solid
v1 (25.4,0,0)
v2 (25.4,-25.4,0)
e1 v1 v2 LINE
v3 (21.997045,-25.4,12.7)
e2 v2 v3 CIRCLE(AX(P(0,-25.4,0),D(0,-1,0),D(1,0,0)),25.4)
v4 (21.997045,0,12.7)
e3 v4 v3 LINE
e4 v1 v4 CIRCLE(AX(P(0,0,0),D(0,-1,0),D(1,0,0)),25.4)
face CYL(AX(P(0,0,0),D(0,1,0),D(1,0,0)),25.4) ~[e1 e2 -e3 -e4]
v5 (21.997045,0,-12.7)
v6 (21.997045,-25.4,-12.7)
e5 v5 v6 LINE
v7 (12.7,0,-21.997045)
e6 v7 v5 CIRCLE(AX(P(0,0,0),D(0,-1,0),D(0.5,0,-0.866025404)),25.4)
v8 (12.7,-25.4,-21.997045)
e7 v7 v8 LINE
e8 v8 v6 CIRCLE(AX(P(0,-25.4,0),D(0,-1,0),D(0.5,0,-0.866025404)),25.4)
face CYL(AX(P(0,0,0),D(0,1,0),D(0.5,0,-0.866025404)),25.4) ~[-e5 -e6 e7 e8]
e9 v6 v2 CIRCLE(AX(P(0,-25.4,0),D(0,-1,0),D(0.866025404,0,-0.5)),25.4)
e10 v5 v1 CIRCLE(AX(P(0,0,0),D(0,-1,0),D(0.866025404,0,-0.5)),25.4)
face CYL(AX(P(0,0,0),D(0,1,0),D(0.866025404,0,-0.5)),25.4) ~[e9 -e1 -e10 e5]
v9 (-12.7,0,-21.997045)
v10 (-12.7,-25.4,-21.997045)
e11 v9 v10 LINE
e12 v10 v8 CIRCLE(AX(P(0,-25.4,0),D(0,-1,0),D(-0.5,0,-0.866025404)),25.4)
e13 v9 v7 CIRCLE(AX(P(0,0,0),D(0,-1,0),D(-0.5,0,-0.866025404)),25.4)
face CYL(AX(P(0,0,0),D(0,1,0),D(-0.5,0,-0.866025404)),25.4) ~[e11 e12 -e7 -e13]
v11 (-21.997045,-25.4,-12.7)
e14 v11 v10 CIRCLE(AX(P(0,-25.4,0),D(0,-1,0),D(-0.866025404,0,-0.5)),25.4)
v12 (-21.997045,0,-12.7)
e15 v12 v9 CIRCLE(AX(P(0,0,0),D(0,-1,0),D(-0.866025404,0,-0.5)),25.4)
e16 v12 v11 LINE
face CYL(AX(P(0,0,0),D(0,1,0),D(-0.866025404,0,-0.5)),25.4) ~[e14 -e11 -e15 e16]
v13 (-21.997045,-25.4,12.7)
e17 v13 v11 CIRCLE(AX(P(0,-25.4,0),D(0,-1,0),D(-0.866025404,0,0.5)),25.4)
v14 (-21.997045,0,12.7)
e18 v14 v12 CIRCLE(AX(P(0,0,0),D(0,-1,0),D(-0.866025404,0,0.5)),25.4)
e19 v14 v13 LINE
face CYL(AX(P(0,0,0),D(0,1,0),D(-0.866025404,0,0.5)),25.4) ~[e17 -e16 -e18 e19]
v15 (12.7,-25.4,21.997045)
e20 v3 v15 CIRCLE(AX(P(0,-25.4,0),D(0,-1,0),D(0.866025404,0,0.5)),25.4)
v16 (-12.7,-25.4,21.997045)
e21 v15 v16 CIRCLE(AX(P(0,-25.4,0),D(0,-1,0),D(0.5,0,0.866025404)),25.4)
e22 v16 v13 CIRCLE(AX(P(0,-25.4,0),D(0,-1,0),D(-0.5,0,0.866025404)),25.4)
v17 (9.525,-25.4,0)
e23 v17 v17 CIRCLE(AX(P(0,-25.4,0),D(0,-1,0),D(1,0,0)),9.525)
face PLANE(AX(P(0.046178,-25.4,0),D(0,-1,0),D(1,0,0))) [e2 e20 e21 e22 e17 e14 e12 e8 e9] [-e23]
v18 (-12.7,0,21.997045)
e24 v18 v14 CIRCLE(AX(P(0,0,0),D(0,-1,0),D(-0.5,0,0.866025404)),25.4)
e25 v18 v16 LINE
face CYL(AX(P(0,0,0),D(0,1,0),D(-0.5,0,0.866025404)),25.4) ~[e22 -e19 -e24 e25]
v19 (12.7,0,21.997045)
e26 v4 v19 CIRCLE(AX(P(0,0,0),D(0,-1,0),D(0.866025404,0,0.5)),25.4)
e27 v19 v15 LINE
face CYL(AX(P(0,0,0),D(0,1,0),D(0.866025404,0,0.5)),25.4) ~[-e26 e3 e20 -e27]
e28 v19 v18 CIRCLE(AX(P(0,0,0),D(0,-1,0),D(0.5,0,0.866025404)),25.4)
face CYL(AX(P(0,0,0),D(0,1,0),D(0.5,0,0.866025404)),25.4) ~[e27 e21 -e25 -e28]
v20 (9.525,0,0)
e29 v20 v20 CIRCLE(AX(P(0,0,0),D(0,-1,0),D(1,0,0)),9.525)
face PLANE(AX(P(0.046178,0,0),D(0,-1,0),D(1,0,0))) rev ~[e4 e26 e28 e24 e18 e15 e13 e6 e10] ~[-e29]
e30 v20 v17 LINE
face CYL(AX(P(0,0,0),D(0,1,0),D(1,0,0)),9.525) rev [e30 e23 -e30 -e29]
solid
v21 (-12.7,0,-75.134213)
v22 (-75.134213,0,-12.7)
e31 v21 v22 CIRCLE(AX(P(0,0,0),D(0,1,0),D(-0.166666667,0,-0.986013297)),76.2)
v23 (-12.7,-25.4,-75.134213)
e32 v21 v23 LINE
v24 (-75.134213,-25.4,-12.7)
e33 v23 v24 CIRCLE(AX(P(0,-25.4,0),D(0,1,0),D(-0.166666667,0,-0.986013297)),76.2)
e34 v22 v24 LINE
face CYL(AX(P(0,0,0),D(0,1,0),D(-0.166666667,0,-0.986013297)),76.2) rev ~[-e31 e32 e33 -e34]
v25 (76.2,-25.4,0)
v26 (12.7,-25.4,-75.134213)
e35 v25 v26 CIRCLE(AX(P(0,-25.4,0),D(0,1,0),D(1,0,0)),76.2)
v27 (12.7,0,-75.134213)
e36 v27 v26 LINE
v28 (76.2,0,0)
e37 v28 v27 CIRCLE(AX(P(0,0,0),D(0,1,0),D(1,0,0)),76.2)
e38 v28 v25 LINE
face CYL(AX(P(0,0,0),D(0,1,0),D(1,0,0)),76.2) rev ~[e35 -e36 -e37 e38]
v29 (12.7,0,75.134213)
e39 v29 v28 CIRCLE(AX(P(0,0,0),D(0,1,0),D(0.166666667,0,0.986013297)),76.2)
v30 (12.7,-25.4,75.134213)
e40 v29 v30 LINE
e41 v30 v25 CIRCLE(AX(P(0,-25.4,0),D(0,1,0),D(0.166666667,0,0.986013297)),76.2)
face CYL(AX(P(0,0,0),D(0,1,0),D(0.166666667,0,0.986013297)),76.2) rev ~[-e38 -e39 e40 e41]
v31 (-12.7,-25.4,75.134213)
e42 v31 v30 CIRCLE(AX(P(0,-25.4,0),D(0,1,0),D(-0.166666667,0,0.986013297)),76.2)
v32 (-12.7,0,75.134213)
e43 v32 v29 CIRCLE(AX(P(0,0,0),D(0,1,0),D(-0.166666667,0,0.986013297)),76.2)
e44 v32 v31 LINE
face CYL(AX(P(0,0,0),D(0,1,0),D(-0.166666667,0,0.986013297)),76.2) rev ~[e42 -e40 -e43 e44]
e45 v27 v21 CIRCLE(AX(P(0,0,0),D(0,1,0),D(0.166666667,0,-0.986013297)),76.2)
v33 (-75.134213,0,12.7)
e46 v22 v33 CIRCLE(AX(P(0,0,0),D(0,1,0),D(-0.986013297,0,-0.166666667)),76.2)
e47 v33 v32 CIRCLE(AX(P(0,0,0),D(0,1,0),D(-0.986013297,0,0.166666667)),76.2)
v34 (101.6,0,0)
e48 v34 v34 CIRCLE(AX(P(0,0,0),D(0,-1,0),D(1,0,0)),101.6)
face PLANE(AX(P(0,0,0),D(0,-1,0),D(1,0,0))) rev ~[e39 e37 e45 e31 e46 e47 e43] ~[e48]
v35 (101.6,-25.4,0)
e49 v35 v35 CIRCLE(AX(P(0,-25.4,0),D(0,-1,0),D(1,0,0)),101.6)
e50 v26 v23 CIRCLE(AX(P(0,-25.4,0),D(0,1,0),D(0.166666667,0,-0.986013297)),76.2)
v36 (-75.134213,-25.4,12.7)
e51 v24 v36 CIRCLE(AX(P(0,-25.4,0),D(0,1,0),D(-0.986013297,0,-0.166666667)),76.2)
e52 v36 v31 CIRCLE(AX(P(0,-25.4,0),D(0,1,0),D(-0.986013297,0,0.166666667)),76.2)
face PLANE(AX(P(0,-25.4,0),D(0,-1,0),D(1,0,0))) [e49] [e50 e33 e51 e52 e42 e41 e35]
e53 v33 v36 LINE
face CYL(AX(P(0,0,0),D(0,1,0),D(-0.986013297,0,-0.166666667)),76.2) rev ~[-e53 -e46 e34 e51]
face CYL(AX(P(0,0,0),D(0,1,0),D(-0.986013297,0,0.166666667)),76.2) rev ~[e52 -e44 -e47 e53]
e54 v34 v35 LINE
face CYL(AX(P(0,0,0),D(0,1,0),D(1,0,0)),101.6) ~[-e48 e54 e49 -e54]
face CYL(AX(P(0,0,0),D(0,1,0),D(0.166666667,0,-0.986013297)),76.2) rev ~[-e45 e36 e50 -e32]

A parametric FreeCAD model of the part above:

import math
import FreeCAD as App
import Part
import Sketcher
Q = App.Units.Quantity

doc = App.newDocument("Part")
body = doc.addObject("PartDesign::Body", "Body")

# Sketch on XZ plane
sketch1 = doc.addObject("Sketcher::SketchObject", "Sketch")
body.addObject(sketch1)
sketch1.AttachmentSupport = (doc.XZ_Plane, [""])
sketch1.MapMode = "FlatFace"
sketch1.addGeometry(Part.Circle(App.Vector(0, 0, 0), App.Vector(0, 0, 1), 102), False)
sketch1.addGeometry(Part.ArcOfCircle(Part.Circle(App.Vector(0, 0, 0), App.Vector(0, 0, 1), 76), math.radians(80.41), math.radians(99.59)), False)
sketch1.addGeometry(Part.ArcOfCircle(Part.Circle(App.Vector(0, 0, 0), App.Vector(0, 0, 1), 76), math.radians(0), math.radians(80)), False)
sketch1.addGeometry(Part.ArcOfCircle(Part.Circle(App.Vector(0, 0, 0), App.Vector(0, 0, 1), 76), math.radians(-80), math.radians(0)), False)
sketch1.addGeometry(Part.ArcOfCircle(Part.Circle(App.Vector(0, 0, 0), App.Vector(0, 0, 1), 76), math.radians(-99.59), math.radians(-80.41)), False)
sketch1.addGeometry(Part.ArcOfCircle(Part.Circle(App.Vector(0, 0, 0), App.Vector(0, 0, 1), 76), math.radians(-170), math.radians(-100)), False)
sketch1.addGeometry(Part.ArcOfCircle(Part.Circle(App.Vector(0, 0, 0), App.Vector(0, 0, 1), 76), math.radians(170.41), math.radians(189.59)), False)
sketch1.addGeometry(Part.ArcOfCircle(Part.Circle(App.Vector(0, 0, 0), App.Vector(0, 0, 1), 76), math.radians(100), math.radians(170)), False)
sketch1.addConstraint(Sketcher.Constraint("Tangent", 1, 1, 2, 2))
sketch1.addConstraint(Sketcher.Constraint("Tangent", 2, 1, 3, 2))
sketch1.addConstraint(Sketcher.Constraint("Tangent", 3, 1, 4, 2))
sketch1.addConstraint(Sketcher.Constraint("Tangent", 4, 1, 5, 2))
sketch1.addConstraint(Sketcher.Constraint("Tangent", 5, 1, 6, 2))
sketch1.addConstraint(Sketcher.Constraint("Tangent", 6, 1, 7, 2))
sketch1.addConstraint(Sketcher.Constraint("Tangent", 7, 1, 1, 2))
sketch1.addConstraint(Sketcher.Constraint("Coincident", 0, 3, -1, 1))
sketch1.addConstraint(Sketcher.Constraint("Coincident", 1, 3, -1, 1))
sketch1.addConstraint(Sketcher.Constraint("Coincident", 3, 3, -1, 1))
sketch1.addConstraint(Sketcher.Constraint("Coincident", 5, 3, -1, 1))
sketch1.addConstraint(Sketcher.Constraint("PointOnObject", 2, 1, -1))
sketch1.addConstraint(Sketcher.Constraint("Horizontal", 3, 1, 4, 1))
sketch1.addConstraint(Sketcher.Constraint("Horizontal", 1, 1, 7, 1))
sketch1.addConstraint(Sketcher.Constraint("Vertical", 1, 1, 3, 1))
sketch1.addConstraint(Sketcher.Constraint("Vertical", 5, 1, 6, 1))
sketch1.addConstraint(Sketcher.Constraint("Diameter", 0, Q("8 in")))
sketch1.addConstraint(Sketcher.Constraint("Radius", 1, Q("3 in")))
sketch1.addConstraint(Sketcher.Constraint("DistanceX", 4, 1, 3, 1, Q("1 in")))
sketch1.addConstraint(Sketcher.Constraint("DistanceY", 5, 1, 6, 1, Q("1 in")))
pad1 = doc.addObject("PartDesign::Pad", "Pad")
body.addObject(pad1)
pad1.Profile = sketch1
pad1.Length = Q("1 in")
body2 = doc.addObject("PartDesign::Body", "Body001")

# Sketch on XZ plane
sketch2 = doc.addObject("Sketcher::SketchObject", "Sketch001")
body2.addObject(sketch2)
sketch2.AttachmentSupport = (doc.getObject("XZ_Plane001"), [""])
sketch2.MapMode = "FlatFace"
sketch2.addGeometry(Part.ArcOfCircle(Part.Circle(App.Vector(0, 0, 0), App.Vector(0, 0, 1), 25), math.radians(30), math.radians(60)), False)
sketch2.addGeometry(Part.ArcOfCircle(Part.Circle(App.Vector(0, 0, 0), App.Vector(0, 0, 1), 25), math.radians(60), math.radians(120)), False)
sketch2.addGeometry(Part.ArcOfCircle(Part.Circle(App.Vector(0, 0, 0), App.Vector(0, 0, 1), 25), math.radians(120), math.radians(150)), False)
sketch2.addGeometry(Part.ArcOfCircle(Part.Circle(App.Vector(0, 0, 0), App.Vector(0, 0, 1), 25), math.radians(150), math.radians(210)), False)
sketch2.addGeometry(Part.ArcOfCircle(Part.Circle(App.Vector(0, 0, 0), App.Vector(0, 0, 1), 25), math.radians(-150), math.radians(-120)), False)
sketch2.addGeometry(Part.ArcOfCircle(Part.Circle(App.Vector(0, 0, 0), App.Vector(0, 0, 1), 25), math.radians(-120), math.radians(-60)), False)
sketch2.addGeometry(Part.ArcOfCircle(Part.Circle(App.Vector(0, 0, 0), App.Vector(0, 0, 1), 25), math.radians(-60), math.radians(-30)), False)
sketch2.addGeometry(Part.ArcOfCircle(Part.Circle(App.Vector(0, 0, 0), App.Vector(0, 0, 1), 25), math.radians(-30), math.radians(0)), False)
sketch2.addGeometry(Part.ArcOfCircle(Part.Circle(App.Vector(0, 0, 0), App.Vector(0, 0, 1), 25), math.radians(0), math.radians(30)), False)
sketch2.addGeometry(Part.Circle(App.Vector(0, 0, 0), App.Vector(0, 0, 1), 10), False)
sketch2.addConstraint(Sketcher.Constraint("Tangent", 0, 2, 1, 1))
sketch2.addConstraint(Sketcher.Constraint("Tangent", 1, 2, 2, 1))
sketch2.addConstraint(Sketcher.Constraint("Tangent", 2, 2, 3, 1))
sketch2.addConstraint(Sketcher.Constraint("Tangent", 3, 2, 4, 1))
sketch2.addConstraint(Sketcher.Constraint("Tangent", 4, 2, 5, 1))
sketch2.addConstraint(Sketcher.Constraint("Tangent", 5, 2, 6, 1))
sketch2.addConstraint(Sketcher.Constraint("Tangent", 6, 2, 7, 1))
sketch2.addConstraint(Sketcher.Constraint("Tangent", 7, 2, 8, 1))
sketch2.addConstraint(Sketcher.Constraint("Tangent", 8, 2, 0, 1))
sketch2.addConstraint(Sketcher.Constraint("Coincident", 0, 3, -1, 1))
sketch2.addConstraint(Sketcher.Constraint("Coincident", 2, 3, -1, 1))
sketch2.addConstraint(Sketcher.Constraint("Coincident", 4, 3, -1, 1))
sketch2.addConstraint(Sketcher.Constraint("Coincident", 6, 3, -1, 1))
sketch2.addConstraint(Sketcher.Constraint("Coincident", 9, 3, -1, 1))
sketch2.addConstraint(Sketcher.Constraint("PointOnObject", 7, 2, -1))
sketch2.addConstraint(Sketcher.Constraint("Horizontal", 0, 2, 1, 2))
sketch2.addConstraint(Sketcher.Constraint("Horizontal", 4, 2, 5, 2))
sketch2.addConstraint(Sketcher.Constraint("Horizontal", 3, 2, 6, 2))
sketch2.addConstraint(Sketcher.Constraint("Horizontal", 2, 2, 8, 2))
sketch2.addConstraint(Sketcher.Constraint("Vertical", 2, 2, 3, 2))
sketch2.addConstraint(Sketcher.Constraint("Vertical", 1, 2, 4, 2))
sketch2.addConstraint(Sketcher.Constraint("Radius", 0, Q("1 in")))
sketch2.addConstraint(Sketcher.Constraint("Diameter", 9, Q("0.75 in")))
sketch2.addConstraint(Sketcher.Constraint("DistanceX", 1, 2, 0, 2, Q("1 in")))
sketch2.addConstraint(Sketcher.Constraint("DistanceY", 3, 2, 2, 2, Q("1 in")))
pad2 = doc.addObject("PartDesign::Pad", "Pad001")
body2.addObject(pad2)
pad2.Profile = sketch2
pad2.Length = Q("1 in")

doc.recompute()
